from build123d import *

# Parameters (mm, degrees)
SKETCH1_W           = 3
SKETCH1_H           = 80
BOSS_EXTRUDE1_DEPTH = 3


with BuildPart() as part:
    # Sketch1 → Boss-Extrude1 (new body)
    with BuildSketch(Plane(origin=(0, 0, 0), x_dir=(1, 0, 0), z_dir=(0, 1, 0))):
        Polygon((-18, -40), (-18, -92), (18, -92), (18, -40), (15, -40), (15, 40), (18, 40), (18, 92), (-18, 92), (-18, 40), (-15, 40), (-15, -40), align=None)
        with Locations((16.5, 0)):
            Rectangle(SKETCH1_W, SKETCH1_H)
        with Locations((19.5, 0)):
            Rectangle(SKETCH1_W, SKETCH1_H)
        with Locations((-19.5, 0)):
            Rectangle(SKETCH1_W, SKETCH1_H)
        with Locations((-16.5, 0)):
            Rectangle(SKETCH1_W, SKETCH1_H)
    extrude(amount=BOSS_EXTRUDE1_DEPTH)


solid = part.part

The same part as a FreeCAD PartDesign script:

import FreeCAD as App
import Part
import Sketcher

V = App.Vector

doc = App.newDocument("Part")
body = doc.addObject("PartDesign::Body", "Body")

sketch1 = doc.addObject("Sketcher::SketchObject", "Sketch")
body.addObject(sketch1)
sketch1.AttachmentSupport = (doc.XZ_Plane, [""])
sketch1.MapMode = "FlatFace"
sketch1.addGeometry([
    Part.LineSegment(V(-18, 40, 0), V(-18, 92, 0)),
    Part.LineSegment(V(-18, 92, 0), V(18, 92, 0)),
    Part.LineSegment(V(18, 92, 0), V(18, 40, 0)),
    Part.LineSegment(V(18, 40, 0), V(21, 40, 0)),
    Part.LineSegment(V(21, 40, 0), V(21, -40, 0)),
    Part.LineSegment(V(21, -40, 0), V(18, -40, 0)),
    Part.LineSegment(V(18, -40, 0), V(18, -92, 0)),
    Part.LineSegment(V(18, -92, 0), V(-18, -92, 0)),
    Part.LineSegment(V(-18, -92, 0), V(-18, -40, 0)),
    Part.LineSegment(V(-18, -40, 0), V(-21, -40, 0)),
    Part.LineSegment(V(-21, -40, 0), V(-21, 40, 0)),
    Part.LineSegment(V(-21, 40, 0), V(-18, 40, 0)),
], False)
sketch1.addConstraint([
    Sketcher.Constraint("Coincident", 0, 2, 1, 1),
    Sketcher.Constraint("Coincident", 1, 2, 2, 1),
    Sketcher.Constraint("Coincident", 2, 2, 3, 1),
    Sketcher.Constraint("Coincident", 3, 2, 4, 1),
    Sketcher.Constraint("Coincident", 4, 2, 5, 1),
    Sketcher.Constraint("Coincident", 5, 2, 6, 1),
    Sketcher.Constraint("Coincident", 6, 2, 7, 1),
    Sketcher.Constraint("Coincident", 7, 2, 8, 1),
    Sketcher.Constraint("Coincident", 8, 2, 9, 1),
    Sketcher.Constraint("Coincident", 9, 2, 10, 1),
    Sketcher.Constraint("Coincident", 10, 2, 11, 1),
    Sketcher.Constraint("Coincident", 11, 2, 0, 1),
    Sketcher.Constraint("Vertical", 0),
    Sketcher.Constraint("Horizontal", 1),
    Sketcher.Constraint("Vertical", 2),
    Sketcher.Constraint("Horizontal", 3),
    Sketcher.Constraint("Vertical", 4),
    Sketcher.Constraint("Horizontal", 5),
    Sketcher.Constraint("Vertical", 6),
    Sketcher.Constraint("Horizontal", 7),
    Sketcher.Constraint("Vertical", 8),
    Sketcher.Constraint("Horizontal", 9),
    Sketcher.Constraint("Vertical", 10),
    Sketcher.Constraint("Horizontal", 11),
    Sketcher.Constraint("Symmetric", 0, 2, 6, 2, -1, 1),
    Sketcher.Constraint("Symmetric", 2, 2, 8, 2, -1, 1),
    Sketcher.Constraint("Symmetric", 4, 2, 10, 2, -1, 1),
    Sketcher.Constraint("Symmetric", 5, 2, 8, 2, -2),
    Sketcher.Constraint("DistanceX", 1, 1, 1, 2, 36.0),
    Sketcher.Constraint("DistanceX", 3, 1, 3, 2, 3.0),
    Sketcher.Constraint("DistanceY", 0, 1, 0, 2, 52.0),
    Sketcher.Constraint("DistanceY", 4, 2, 4, 1, 80.0),
])
pad1 = doc.addObject("PartDesign::Pad", "Pad")
body.addObject(pad1)
pad1.Profile = sketch1
pad1.Length = 3
pad1.Reversed = True

doc.recompute()
